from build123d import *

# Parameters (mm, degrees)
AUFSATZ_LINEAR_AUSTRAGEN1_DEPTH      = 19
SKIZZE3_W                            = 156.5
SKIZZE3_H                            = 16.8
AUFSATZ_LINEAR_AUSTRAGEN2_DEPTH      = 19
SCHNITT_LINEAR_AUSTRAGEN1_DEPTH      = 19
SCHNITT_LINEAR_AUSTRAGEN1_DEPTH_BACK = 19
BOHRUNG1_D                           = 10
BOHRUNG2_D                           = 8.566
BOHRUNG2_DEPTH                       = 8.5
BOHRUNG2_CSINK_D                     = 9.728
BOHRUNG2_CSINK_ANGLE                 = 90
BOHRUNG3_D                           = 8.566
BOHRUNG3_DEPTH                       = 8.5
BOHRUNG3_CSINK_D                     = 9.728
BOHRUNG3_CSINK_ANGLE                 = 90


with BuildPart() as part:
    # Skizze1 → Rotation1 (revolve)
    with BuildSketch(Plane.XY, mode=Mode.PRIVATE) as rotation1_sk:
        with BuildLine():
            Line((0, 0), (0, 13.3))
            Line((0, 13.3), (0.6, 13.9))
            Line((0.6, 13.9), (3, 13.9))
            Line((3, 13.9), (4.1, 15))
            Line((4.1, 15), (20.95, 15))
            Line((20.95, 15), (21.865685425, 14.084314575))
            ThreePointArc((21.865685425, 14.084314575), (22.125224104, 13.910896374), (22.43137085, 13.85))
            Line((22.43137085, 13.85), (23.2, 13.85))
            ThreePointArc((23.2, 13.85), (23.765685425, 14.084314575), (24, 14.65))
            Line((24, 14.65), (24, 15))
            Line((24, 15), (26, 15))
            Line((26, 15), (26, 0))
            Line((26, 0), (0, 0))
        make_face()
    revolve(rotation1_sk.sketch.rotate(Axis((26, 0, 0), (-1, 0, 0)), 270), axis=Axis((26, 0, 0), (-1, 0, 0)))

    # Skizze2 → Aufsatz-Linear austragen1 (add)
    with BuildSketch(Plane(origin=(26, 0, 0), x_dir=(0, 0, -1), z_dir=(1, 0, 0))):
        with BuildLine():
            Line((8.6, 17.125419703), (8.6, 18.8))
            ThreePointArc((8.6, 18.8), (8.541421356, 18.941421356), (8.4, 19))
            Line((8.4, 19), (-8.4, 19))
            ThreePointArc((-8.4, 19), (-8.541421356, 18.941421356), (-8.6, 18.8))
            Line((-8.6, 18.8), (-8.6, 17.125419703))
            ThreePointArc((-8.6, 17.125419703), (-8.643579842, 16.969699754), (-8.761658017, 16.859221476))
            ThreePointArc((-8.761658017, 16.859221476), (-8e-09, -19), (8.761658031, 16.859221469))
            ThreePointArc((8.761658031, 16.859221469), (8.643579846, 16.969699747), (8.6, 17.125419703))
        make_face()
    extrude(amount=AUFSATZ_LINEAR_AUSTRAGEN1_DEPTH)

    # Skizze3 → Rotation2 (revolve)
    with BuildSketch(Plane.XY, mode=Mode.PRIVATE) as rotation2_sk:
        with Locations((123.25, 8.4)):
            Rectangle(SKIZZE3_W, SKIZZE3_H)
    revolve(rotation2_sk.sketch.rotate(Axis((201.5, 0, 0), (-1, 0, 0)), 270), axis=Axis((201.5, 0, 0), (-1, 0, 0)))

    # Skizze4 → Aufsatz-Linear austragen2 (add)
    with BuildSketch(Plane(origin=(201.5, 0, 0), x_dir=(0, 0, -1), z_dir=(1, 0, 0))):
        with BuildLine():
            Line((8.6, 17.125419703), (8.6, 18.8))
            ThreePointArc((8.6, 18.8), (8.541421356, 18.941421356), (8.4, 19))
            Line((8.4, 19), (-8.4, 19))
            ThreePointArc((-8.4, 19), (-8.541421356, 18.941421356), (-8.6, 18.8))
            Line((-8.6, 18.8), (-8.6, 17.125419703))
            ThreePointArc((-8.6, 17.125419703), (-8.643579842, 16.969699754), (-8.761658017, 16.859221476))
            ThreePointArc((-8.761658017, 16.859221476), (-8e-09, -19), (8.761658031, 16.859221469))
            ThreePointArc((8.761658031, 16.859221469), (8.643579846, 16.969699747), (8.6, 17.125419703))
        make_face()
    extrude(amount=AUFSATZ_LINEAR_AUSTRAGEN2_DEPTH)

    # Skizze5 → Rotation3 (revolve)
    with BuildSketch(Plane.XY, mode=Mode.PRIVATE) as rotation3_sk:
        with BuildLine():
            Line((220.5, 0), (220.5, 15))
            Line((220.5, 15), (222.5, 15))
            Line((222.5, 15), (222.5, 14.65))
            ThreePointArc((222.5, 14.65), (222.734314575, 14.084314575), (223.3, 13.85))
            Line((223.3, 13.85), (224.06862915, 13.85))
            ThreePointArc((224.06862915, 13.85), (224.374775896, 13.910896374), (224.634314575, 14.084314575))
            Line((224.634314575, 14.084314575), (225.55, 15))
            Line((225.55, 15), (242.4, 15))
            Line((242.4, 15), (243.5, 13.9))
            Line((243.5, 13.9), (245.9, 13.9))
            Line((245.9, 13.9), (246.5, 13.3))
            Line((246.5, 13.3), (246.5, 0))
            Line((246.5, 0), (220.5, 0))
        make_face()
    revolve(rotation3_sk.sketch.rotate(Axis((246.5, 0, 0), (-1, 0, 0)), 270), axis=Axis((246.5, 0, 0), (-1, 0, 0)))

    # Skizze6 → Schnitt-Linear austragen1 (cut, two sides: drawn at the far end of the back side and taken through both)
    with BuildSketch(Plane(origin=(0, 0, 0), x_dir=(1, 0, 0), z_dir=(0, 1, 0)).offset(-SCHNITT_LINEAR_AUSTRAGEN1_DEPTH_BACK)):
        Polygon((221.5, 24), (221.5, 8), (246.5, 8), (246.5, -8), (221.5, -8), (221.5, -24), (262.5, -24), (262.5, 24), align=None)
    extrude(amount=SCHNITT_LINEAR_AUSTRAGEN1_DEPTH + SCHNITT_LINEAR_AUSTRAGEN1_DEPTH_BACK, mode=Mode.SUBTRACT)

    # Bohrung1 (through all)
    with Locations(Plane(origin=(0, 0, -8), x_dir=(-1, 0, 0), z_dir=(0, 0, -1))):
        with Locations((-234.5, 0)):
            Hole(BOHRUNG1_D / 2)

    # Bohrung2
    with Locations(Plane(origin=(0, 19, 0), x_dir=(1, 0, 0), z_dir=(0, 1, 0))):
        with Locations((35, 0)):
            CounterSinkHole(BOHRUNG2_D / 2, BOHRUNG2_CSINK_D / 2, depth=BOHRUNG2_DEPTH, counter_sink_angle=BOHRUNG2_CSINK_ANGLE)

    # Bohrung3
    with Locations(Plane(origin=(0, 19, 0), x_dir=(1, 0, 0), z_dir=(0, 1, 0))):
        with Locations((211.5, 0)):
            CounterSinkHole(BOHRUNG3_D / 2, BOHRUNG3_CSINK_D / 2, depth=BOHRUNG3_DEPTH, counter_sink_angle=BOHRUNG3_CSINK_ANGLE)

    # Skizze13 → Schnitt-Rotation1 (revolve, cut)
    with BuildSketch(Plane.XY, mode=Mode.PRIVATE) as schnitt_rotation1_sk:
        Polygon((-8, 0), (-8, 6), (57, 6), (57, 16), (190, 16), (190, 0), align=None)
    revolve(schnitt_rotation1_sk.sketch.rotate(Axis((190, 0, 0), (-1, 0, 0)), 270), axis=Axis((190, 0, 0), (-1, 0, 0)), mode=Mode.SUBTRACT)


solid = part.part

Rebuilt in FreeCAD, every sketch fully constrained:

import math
import FreeCAD as App
import Part
import Sketcher
Q = App.Units.Quantity

doc = App.newDocument("Part")
body = doc.addObject("PartDesign::Body", "Body")

# Sketch on XY plane
sketch1 = doc.addObject("Sketcher::SketchObject", "Sketch")
body.addObject(sketch1)
sketch1.AttachmentSupport = (doc.XY_Plane, [""])
sketch1.MapMode = "FlatFace"
sketch1.addGeometry([
    Part.LineSegment(App.Vector(0, 13.3, 0), App.Vector(0, 0, 0)),  # 0
    Part.LineSegment(App.Vector(0, 0, 0), App.Vector(26, 0, 0)),  # 1
    Part.LineSegment(App.Vector(26, 0, 0), App.Vector(26, 15, 0)),  # 2
    Part.LineSegment(App.Vector(26, 15, 0), App.Vector(24, 15, 0)),  # 3
    Part.LineSegment(App.Vector(24, 15, 0), App.Vector(24, 14.65, 0)),  # 4
    Part.ArcOfCircle(Part.Circle(App.Vector(23.2, 14.65, 0), App.Vector(0, 0, 1), 0.8), math.radians(-90), math.radians(0)),  # 5
    Part.LineSegment(App.Vector(23.2, 13.85, 0), App.Vector(22.431371, 13.85, 0)),  # 6
    Part.ArcOfCircle(Part.Circle(App.Vector(22.431371, 14.65, 0), App.Vector(0, 0, 1), 0.8), math.radians(-135), math.radians(-90)),  # 7
    Part.LineSegment(App.Vector(21.865685, 14.084315, 0), App.Vector(20.95, 15, 0)),  # 8
    Part.LineSegment(App.Vector(20.95, 15, 0), App.Vector(4.1, 15, 0)),  # 9
    Part.LineSegment(App.Vector(4.1, 15, 0), App.Vector(3, 13.9, 0)),  # 10
    Part.LineSegment(App.Vector(3, 13.9, 0), App.Vector(0.6, 13.9, 0)),  # 11
    Part.LineSegment(App.Vector(0.6, 13.9, 0), App.Vector(0, 13.3, 0)),  # 12
], False)
sketch1.addConstraint([
    Sketcher.Constraint("Coincident", 0, 2, 1, 1),
    Sketcher.Constraint("Coincident", 1, 2, 2, 1),
    Sketcher.Constraint("Coincident", 2, 2, 3, 1),
    Sketcher.Constraint("Coincident", 3, 2, 4, 1),
    Sketcher.Constraint("Tangent", 4, 2, 5, 2),
    Sketcher.Constraint("Tangent", 5, 1, 6, 1),
    Sketcher.Constraint("Tangent", 6, 2, 7, 2),
    Sketcher.Constraint("Tangent", 7, 1, 8, 1),
    Sketcher.Constraint("Coincident", 8, 2, 9, 1),
    Sketcher.Constraint("Coincident", 9, 2, 10, 1),
    Sketcher.Constraint("Coincident", 10, 2, 11, 1),
    Sketcher.Constraint("Coincident", 11, 2, 12, 1),
    Sketcher.Constraint("Coincident", 12, 2, 0, 1),
    Sketcher.Constraint("Vertical", 0),
    Sketcher.Constraint("Horizontal", 1),
    Sketcher.Constraint("Vertical", 2),
    Sketcher.Constraint("Horizontal", 3),
    Sketcher.Constraint("Vertical", 4),
    Sketcher.Constraint("Horizontal", 6),
    Sketcher.Constraint("Horizontal", 9),
    Sketcher.Constraint("Horizontal", 11),
    Sketcher.Constraint("Coincident", 0, 2, -1, 1),
    Sketcher.Constraint("Equal", 5, 7),
    Sketcher.Constraint("Perpendicular", 8, 10),
    Sketcher.Constraint("Parallel", 10, 12),
    Sketcher.Constraint("Horizontal", 3, 2, 8, 2),
    Sketcher.Constraint("Radius", 5, 0.8),
    Sketcher.Constraint("DistanceX", 1, 1, 1, 2, 26.0),
    Sketcher.Constraint("DistanceX", 3, 2, 3, 1, 2.0),
    Sketcher.Constraint("DistanceY", 2, 1, 2, 2, 15.0),
    Sketcher.Constraint("Angle", 8, Q("135 deg")),
    Sketcher.Constraint("DistanceX", 11, 2, 11, 1, 2.4),
    Sketcher.Constraint("DistanceY", 0, 2, 0, 1, 13.3),
    Sketcher.Constraint("DistanceX", -1, 1, 10, 2, 3.0),
    Sketcher.Constraint("DistanceX", 9, 2, 9, 1, 16.85),
    Sketcher.Constraint("DistanceY", 4, 2, 4, 1, 0.35),
])
revolution = doc.addObject("PartDesign::Revolution", "Revolution")
body.addObject(revolution)
revolution.Profile = sketch1
revolution.ReferenceAxis = (sketch1, ["H_Axis"])
revolution.Angle = 360

# Sketch on YZ plane
sketch2 = doc.addObject("Sketcher::SketchObject", "Sketch001")
body.addObject(sketch2)
sketch2.AttachmentSupport = (doc.YZ_Plane, [""])
sketch2.MapMode = "FlatFace"
sketch2.AttachmentOffset = App.Placement(App.Vector(0, 0, 26), App.Rotation())
sketch2.addGeometry([
    Part.LineSegment(App.Vector(17.12542, -8.6, 0), App.Vector(18.8, -8.6, 0)),  # 0
    Part.ArcOfCircle(Part.Circle(App.Vector(18.8, -8.4, 0), App.Vector(0, 0, 1), 0.2), math.radians(-90), math.radians(0)),  # 1
    Part.LineSegment(App.Vector(19, -8.4, 0), App.Vector(19, 8.4, 0)),  # 2
    Part.ArcOfCircle(Part.Circle(App.Vector(18.8, 8.4, 0), App.Vector(0, 0, 1), 0.2), math.radians(0), math.radians(90)),  # 3
    Part.LineSegment(App.Vector(18.8, 8.6, 0), App.Vector(17.12542, 8.6, 0)),  # 4
    Part.ArcOfCircle(Part.Circle(App.Vector(17.12542, 8.9, 0), App.Vector(0, 0, 1), 0.3), math.radians(-152.539309), math.radians(-90)),  # 5
    Part.ArcOfCircle(Part.Circle(App.Vector(0, 0, 0), App.Vector(0, 0, 1), 19), math.radians(27.460687), math.radians(332.539313)),  # 6
    Part.ArcOfCircle(Part.Circle(App.Vector(17.12542, -8.9, 0), App.Vector(0, 0, 1), 0.3), math.radians(90), math.radians(152.539313)),  # 7
], False)
sketch2.addConstraint([
    Sketcher.Constraint("Tangent", 0, 2, 1, 1),
    Sketcher.Constraint("Tangent", 1, 2, 2, 1),
    Sketcher.Constraint("Tangent", 2, 2, 3, 1),
    Sketcher.Constraint("Tangent", 3, 2, 4, 1),
    Sketcher.Constraint("Tangent", 4, 2, 5, 2),
    Sketcher.Constraint("Tangent", 5, 1, 6, 1),
    Sketcher.Constraint("Tangent", 6, 2, 7, 2),
    Sketcher.Constraint("Tangent", 7, 1, 0, 1),
    Sketcher.Constraint("Horizontal", 0),
    Sketcher.Constraint("Vertical", 2),
    Sketcher.Constraint("Horizontal", 4),
    Sketcher.Constraint("Coincident", 6, 3, -1, 1),
    Sketcher.Constraint("Equal", 1, 3),
    Sketcher.Constraint("Equal", 5, 7),
    Sketcher.Constraint("Vertical", 5, 3, 7, 3),
    Sketcher.Constraint("Radius", 6, 19.0),
    Sketcher.Constraint("Radius", 1, 0.2),
    Sketcher.Constraint("Radius", 5, 0.3),
    Sketcher.Constraint("DistanceY", 2, 1, 2, 2, 16.8),
    Sketcher.Constraint("DistanceX", -1, 1, 1, 2, 19.0),
])
pad1 = doc.addObject("PartDesign::Pad", "Pad")
body.addObject(pad1)
pad1.Profile = sketch2
pad1.Length = 19

# Sketch on XY plane
sketch3 = doc.addObject("Sketcher::SketchObject", "Sketch002")
body.addObject(sketch3)
sketch3.AttachmentSupport = (doc.XY_Plane, [""])
sketch3.MapMode = "FlatFace"
sketch3.addGeometry([
    Part.LineSegment(App.Vector(45, 16.8, 0), App.Vector(45, 0, 0)),
    Part.LineSegment(App.Vector(45, 0, 0), App.Vector(201.5, 0, 0)),
    Part.LineSegment(App.Vector(201.5, 0, 0), App.Vector(201.5, 16.8, 0)),
    Part.LineSegment(App.Vector(201.5, 16.8, 0), App.Vector(45, 16.8, 0)),
], False)
sketch3.addConstraint([
    Sketcher.Constraint("Coincident", 0, 2, 1, 1),
    Sketcher.Constraint("Coincident", 1, 2, 2, 1),
    Sketcher.Constraint("Coincident", 2, 2, 3, 1),
    Sketcher.Constraint("Coincident", 3, 2, 0, 1),
    Sketcher.Constraint("Vertical", 0),
    Sketcher.Constraint("Horizontal", 1),
    Sketcher.Constraint("Vertical", 2),
    Sketcher.Constraint("Horizontal", 3),
    Sketcher.Constraint("PointOnObject", 0, 2, -1),
    Sketcher.Constraint("DistanceX", 1, 1, 1, 2, 156.5),
    Sketcher.Constraint("DistanceY", 0, 2, 0, 1, 16.8),
    Sketcher.Constraint("DistanceX", -1, 1, 0, 2, 45.0),
])
revolution2 = doc.addObject("PartDesign::Revolution", "Revolution001")
body.addObject(revolution2)
revolution2.Profile = sketch3
revolution2.ReferenceAxis = (sketch3, ["H_Axis"])
revolution2.Angle = 360

# Sketch on YZ plane
sketch4 = doc.addObject("Sketcher::SketchObject", "Sketch003")
body.addObject(sketch4)
sketch4.AttachmentSupport = (doc.YZ_Plane, [""])
sketch4.MapMode = "FlatFace"
sketch4.AttachmentOffset = App.Placement(App.Vector(0, 0, 201.5), App.Rotation())
sketch4.addGeometry([
    Part.LineSegment(App.Vector(17.12542, -8.6, 0), App.Vector(18.8, -8.6, 0)),  # 0
    Part.ArcOfCircle(Part.Circle(App.Vector(18.8, -8.4, 0), App.Vector(0, 0, 1), 0.2), math.radians(-90), math.radians(0)),  # 1
    Part.LineSegment(App.Vector(19, -8.4, 0), App.Vector(19, 8.4, 0)),  # 2
    Part.ArcOfCircle(Part.Circle(App.Vector(18.8, 8.4, 0), App.Vector(0, 0, 1), 0.2), math.radians(0), math.radians(90)),  # 3
    Part.LineSegment(App.Vector(18.8, 8.6, 0), App.Vector(17.12542, 8.6, 0)),  # 4
    Part.ArcOfCircle(Part.Circle(App.Vector(17.12542, 8.9, 0), App.Vector(0, 0, 1), 0.3), math.radians(-152.539309), math.radians(-90)),  # 5
    Part.ArcOfCircle(Part.Circle(App.Vector(0, 0, 0), App.Vector(0, 0, 1), 19), math.radians(27.460687), math.radians(332.539313)),  # 6
    Part.ArcOfCircle(Part.Circle(App.Vector(17.12542, -8.9, 0), App.Vector(0, 0, 1), 0.3), math.radians(90), math.radians(152.539313)),  # 7
], False)
sketch4.addConstraint([
    Sketcher.Constraint("Tangent", 0, 2, 1, 1),
    Sketcher.Constraint("Tangent", 1, 2, 2, 1),
    Sketcher.Constraint("Tangent", 2, 2, 3, 1),
    Sketcher.Constraint("Tangent", 3, 2, 4, 1),
    Sketcher.Constraint("Tangent", 4, 2, 5, 2),
    Sketcher.Constraint("Tangent", 5, 1, 6, 1),
    Sketcher.Constraint("Tangent", 6, 2, 7, 2),
    Sketcher.Constraint("Tangent", 7, 1, 0, 1),
    Sketcher.Constraint("Horizontal", 0),
    Sketcher.Constraint("Vertical", 2),
    Sketcher.Constraint("Horizontal", 4),
    Sketcher.Constraint("Coincident", 6, 3, -1, 1),
    Sketcher.Constraint("Equal", 1, 3),
    Sketcher.Constraint("Equal", 5, 7),
    Sketcher.Constraint("Vertical", 5, 3, 7, 3),
    Sketcher.Constraint("Radius", 6, 19.0),
    Sketcher.Constraint("Radius", 1, 0.2),
    Sketcher.Constraint("Radius", 5, 0.3),
    Sketcher.Constraint("DistanceY", 2, 1, 2, 2, 16.8),
    Sketcher.Constraint("DistanceX", -1, 1, 1, 2, 19.0),
])
pad2 = doc.addObject("PartDesign::Pad", "Pad001")
body.addObject(pad2)
pad2.Profile = sketch4
pad2.Length = 19

# Sketch on XY plane
sketch5 = doc.addObject("Sketcher::SketchObject", "Sketch004")
body.addObject(sketch5)
sketch5.AttachmentSupport = (doc.XY_Plane, [""])
sketch5.MapMode = "FlatFace"
sketch5.addGeometry([
    Part.LineSegment(App.Vector(220.5, 15, 0), App.Vector(220.5, 0, 0)),  # 0
    Part.LineSegment(App.Vector(220.5, 0, 0), App.Vector(246.5, 0, 0)),  # 1
    Part.LineSegment(App.Vector(246.5, 0, 0), App.Vector(246.5, 13.3, 0)),  # 2
    Part.LineSegment(App.Vector(246.5, 13.3, 0), App.Vector(245.9, 13.9, 0)),  # 3
    Part.LineSegment(App.Vector(245.9, 13.9, 0), App.Vector(243.5, 13.9, 0)),  # 4
    Part.LineSegment(App.Vector(243.5, 13.9, 0), App.Vector(242.4, 15, 0)),  # 5
    Part.LineSegment(App.Vector(242.4, 15, 0), App.Vector(225.55, 15, 0)),  # 6
    Part.LineSegment(App.Vector(225.55, 15, 0), App.Vector(224.634315, 14.084315, 0)),  # 7
    Part.ArcOfCircle(Part.Circle(App.Vector(224.068629, 14.65, 0), App.Vector(0, 0, 1), 0.8), math.radians(-90), math.radians(-45)),  # 8
    Part.LineSegment(App.Vector(224.068629, 13.85, 0), App.Vector(223.3, 13.85, 0)),  # 9
    Part.ArcOfCircle(Part.Circle(App.Vector(223.3, 14.65, 0), App.Vector(0, 0, 1), 0.8), math.radians(180), math.radians(270)),  # 10
    Part.LineSegment(App.Vector(222.5, 14.65, 0), App.Vector(222.5, 15, 0)),  # 11
    Part.LineSegment(App.Vector(222.5, 15, 0), App.Vector(220.5, 15, 0)),  # 12
], False)
sketch5.addConstraint([
    Sketcher.Constraint("Coincident", 0, 2, 1, 1),
    Sketcher.Constraint("Coincident", 1, 2, 2, 1),
    Sketcher.Constraint("Coincident", 2, 2, 3, 1),
    Sketcher.Constraint("Coincident", 3, 2, 4, 1),
    Sketcher.Constraint("Coincident", 4, 2, 5, 1),
    Sketcher.Constraint("Coincident", 5, 2, 6, 1),
    Sketcher.Constraint("Coincident", 6, 2, 7, 1),
    Sketcher.Constraint("Tangent", 7, 2, 8, 2),
    Sketcher.Constraint("Tangent", 8, 1, 9, 1),
    Sketcher.Constraint("Tangent", 9, 2, 10, 2),
    Sketcher.Constraint("Tangent", 10, 1, 11, 1),
    Sketcher.Constraint("Coincident", 11, 2, 12, 1),
    Sketcher.Constraint("Coincident", 12, 2, 0, 1),
    Sketcher.Constraint("Vertical", 0),
    Sketcher.Constraint("Horizontal", 1),
    Sketcher.Constraint("Vertical", 2),
    Sketcher.Constraint("Horizontal", 4),
    Sketcher.Constraint("Horizontal", 6),
    Sketcher.Constraint("Horizontal", 9),
    Sketcher.Constraint("Vertical", 11),
    Sketcher.Constraint("Horizontal", 12),
    Sketcher.Constraint("Equal", 8, 10),
    Sketcher.Constraint("PointOnObject", 0, 2, -1),
    Sketcher.Constraint("Parallel", 3, 5),
    Sketcher.Constraint("Perpendicular", 5, 7),
    Sketcher.Constraint("Horizontal", 6, 2, 11, 2),
    Sketcher.Constraint("Radius", 8, 0.8),
    Sketcher.Constraint("DistanceX", 1, 1, 1, 2, 26.0),
    Sketcher.Constraint("DistanceX", 12, 2, 12, 1, 2.0),
    Sketcher.Constraint("DistanceY", 0, 2, 0, 1, 15.0),
    Sketcher.Constraint("Angle", 3, Q("135 deg")),
    Sketcher.Constraint("DistanceX", 4, 2, 4, 1, 2.4),
    Sketcher.Constraint("DistanceY", 2, 1, 2, 2, 13.3),
    Sketcher.Constraint("DistanceX", 4, 2, 2, 2, 3.0),
    Sketcher.Constraint("DistanceX", 6, 2, 6, 1, 16.85),
    Sketcher.Constraint("DistanceY", 11, 1, 11, 2, 0.35),
    Sketcher.Constraint("DistanceX", -1, 1, 10, 3, 223.3),
])
revolution3 = doc.addObject("PartDesign::Revolution", "Revolution002")
body.addObject(revolution3)
revolution3.Profile = sketch5
revolution3.ReferenceAxis = (sketch5, ["H_Axis"])
revolution3.Angle = 360

# Sketch on XZ plane
sketch6 = doc.addObject("Sketcher::SketchObject", "Sketch005")
body.addObject(sketch6)
sketch6.AttachmentSupport = (doc.XZ_Plane, [""])
sketch6.MapMode = "FlatFace"
sketch6.addGeometry([
    Part.LineSegment(App.Vector(221.5, -24, 0), App.Vector(221.5, -8, 0)),  # 0
    Part.LineSegment(App.Vector(221.5, -8, 0), App.Vector(246.5, -8, 0)),  # 1
    Part.LineSegment(App.Vector(246.5, -8, 0), App.Vector(246.5, 8, 0)),  # 2
    Part.LineSegment(App.Vector(246.5, 8, 0), App.Vector(221.5, 8, 0)),  # 3
    Part.LineSegment(App.Vector(221.5, 8, 0), App.Vector(221.5, 24, 0)),  # 4
    Part.LineSegment(App.Vector(221.5, 24, 0), App.Vector(262.5, 24, 0)),  # 5
    Part.LineSegment(App.Vector(262.5, 24, 0), App.Vector(262.5, -24, 0)),  # 6
    Part.LineSegment(App.Vector(262.5, -24, 0), App.Vector(221.5, -24, 0)),  # 7
], False)
sketch6.addConstraint([
    Sketcher.Constraint("Coincident", 0, 2, 1, 1),
    Sketcher.Constraint("Coincident", 1, 2, 2, 1),
    Sketcher.Constraint("Coincident", 2, 2, 3, 1),
    Sketcher.Constraint("Coincident", 3, 2, 4, 1),
    Sketcher.Constraint("Coincident", 4, 2, 5, 1),
    Sketcher.Constraint("Coincident", 5, 2, 6, 1),
    Sketcher.Constraint("Coincident", 6, 2, 7, 1),
    Sketcher.Constraint("Coincident", 7, 2, 0, 1),
    Sketcher.Constraint("Vertical", 0),
    Sketcher.Constraint("Horizontal", 1),
    Sketcher.Constraint("Vertical", 2),
    Sketcher.Constraint("Horizontal", 3),
    Sketcher.Constraint("Vertical", 4),
    Sketcher.Constraint("Horizontal", 5),
    Sketcher.Constraint("Vertical", 6),
    Sketcher.Constraint("Horizontal", 7),
    Sketcher.Constraint("Symmetric", 0, 2, 3, 2, -1),
    Sketcher.Constraint("Equal", 0, 2),
    Sketcher.Constraint("Equal", 2, 4),
    Sketcher.Constraint("DistanceX", 1, 1, 1, 2, 25.0),
    Sketcher.Constraint("DistanceX", 5, 1, 5, 2, 41.0),
    Sketcher.Constraint("DistanceY", 0, 1, 0, 2, 16.0),
    Sketcher.Constraint("DistanceX", -1, 1, 0, 2, 221.5),
])
pocket1 = doc.addObject("PartDesign::Pocket", "Pocket")
body.addObject(pocket1)
pocket1.Profile = sketch6
pocket1.Type = "ThroughAll"
pocket1.Midplane = True

# Sketch on XY plane
sketch7 = doc.addObject("Sketcher::SketchObject", "Sketch006")
body.addObject(sketch7)
sketch7.AttachmentSupport = (doc.XY_Plane, [""])
sketch7.MapMode = "FlatFace"
sketch7.AttachmentOffset = App.Placement(App.Vector(0, 0, -8), App.Rotation())
sketch7.addGeometry(Part.Circle(App.Vector(234.5, 0, 0), App.Vector(0, 0, 1), 5), False)
sketch7.addConstraint([
    Sketcher.Constraint("PointOnObject", 0, 3, -1),
    Sketcher.Constraint("Diameter", 0, 10.0),
    Sketcher.Constraint("DistanceX", -1, 1, 0, 3, 234.5),
])
doc.recompute()
hole = doc.addObject("PartDesign::Hole", "Hole")
body.addObject(hole)
hole.Profile = sketch7
hole.ThreadType = "None"
hole.Diameter = 10
hole.DepthType = "ThroughAll"
hole.Reversed = True

# Sketch on XZ plane
sketch8 = doc.addObject("Sketcher::SketchObject", "Sketch007")
body.addObject(sketch8)
sketch8.AttachmentSupport = (doc.XZ_Plane, [""])
sketch8.MapMode = "FlatFace"
sketch8.AttachmentOffset = App.Placement(App.Vector(0, 0, -19), App.Rotation())
sketch8.addGeometry(Part.Circle(App.Vector(35, 0, 0), App.Vector(0, 0, 1), 4.283), False)
sketch8.addConstraint([
    Sketcher.Constraint("PointOnObject", 0, 3, -1),
    Sketcher.Constraint("Diameter", 0, 8.566),
    Sketcher.Constraint("DistanceX", -1, 1, 0, 3, 35.0),
])
doc.recompute()
hole2 = doc.addObject("PartDesign::Hole", "Hole001")
body.addObject(hole2)
hole2.Profile = sketch8
hole2.ThreadType = "None"
hole2.Diameter = 8.566
hole2.DepthType = "Dimension"
hole2.Depth = 8.5
hole2.DrillPoint = "Flat"
hole2.HoleCutType = "Countersink"
hole2.HoleCutDiameter = 9.728
hole2.HoleCutCountersinkAngle = 90
hole2.Reversed = True

# Sketch on XZ plane
sketch9 = doc.addObject("Sketcher::SketchObject", "Sketch008")
body.addObject(sketch9)
sketch9.AttachmentSupport = (doc.XZ_Plane, [""])
sketch9.MapMode = "FlatFace"
sketch9.AttachmentOffset = App.Placement(App.Vector(0, 0, -19), App.Rotation())
sketch9.addGeometry(Part.Circle(App.Vector(211.5, 0, 0), App.Vector(0, 0, 1), 4.283), False)
sketch9.addConstraint([
    Sketcher.Constraint("PointOnObject", 0, 3, -1),
    Sketcher.Constraint("Diameter", 0, 8.566),
    Sketcher.Constraint("DistanceX", -1, 1, 0, 3, 211.5),
])
doc.recompute()
hole3 = doc.addObject("PartDesign::Hole", "Hole002")
body.addObject(hole3)
hole3.Profile = sketch9
hole3.ThreadType = "None"
hole3.Diameter = 8.566
hole3.DepthType = "Dimension"
hole3.Depth = 8.5
hole3.DrillPoint = "Flat"
hole3.HoleCutType = "Countersink"
hole3.HoleCutDiameter = 9.728
hole3.HoleCutCountersinkAngle = 90
hole3.Reversed = True

# Sketch on XY plane
sketch10 = doc.addObject("Sketcher::SketchObject", "Sketch009")
body.addObject(sketch10)
sketch10.AttachmentSupport = (doc.XY_Plane, [""])
sketch10.MapMode = "FlatFace"
sketch10.addGeometry([
    Part.LineSegment(App.Vector(-8, 6, 0), App.Vector(-8, 0, 0)),  # 0
    Part.LineSegment(App.Vector(-8, 0, 0), App.Vector(190, 0, 0)),  # 1
    Part.LineSegment(App.Vector(190, 0, 0), App.Vector(190, 16, 0)),  # 2
    Part.LineSegment(App.Vector(190, 16, 0), App.Vector(57, 16, 0)),  # 3
    Part.LineSegment(App.Vector(57, 16, 0), App.Vector(57, 6, 0)),  # 4
    Part.LineSegment(App.Vector(57, 6, 0), App.Vector(-8, 6, 0)),  # 5
], False)
sketch10.addConstraint([
    Sketcher.Constraint("Coincident", 0, 2, 1, 1),
    Sketcher.Constraint("Coincident", 1, 2, 2, 1),
    Sketcher.Constraint("Coincident", 2, 2, 3, 1),
    Sketcher.Constraint("Coincident", 3, 2, 4, 1),
    Sketcher.Constraint("Coincident", 4, 2, 5, 1),
    Sketcher.Constraint("Coincident", 5, 2, 0, 1),
    Sketcher.Constraint("Vertical", 0),
    Sketcher.Constraint("Horizontal", 1),
    Sketcher.Constraint("Vertical", 2),
    Sketcher.Constraint("Horizontal", 3),
    Sketcher.Constraint("Vertical", 4),
    Sketcher.Constraint("Horizontal", 5),
    Sketcher.Constraint("PointOnObject", 0, 2, -1),
    Sketcher.Constraint("DistanceX", 1, 1, 1, 2, 198.0),
    Sketcher.Constraint("DistanceX", 3, 2, 3, 1, 133.0),
    Sketcher.Constraint("DistanceY", 0, 2, 0, 1, 6.0),
    Sketcher.Constraint("DistanceY", 2, 1, 2, 2, 16.0),
    Sketcher.Constraint("DistanceX", 0, 2, -1, 1, 8.0),
])
groove = doc.addObject("PartDesign::Groove", "Groove")
body.addObject(groove)
groove.Profile = sketch10
groove.ReferenceAxis = (sketch10, ["H_Axis"])
groove.Angle = 360

doc.recompute()
